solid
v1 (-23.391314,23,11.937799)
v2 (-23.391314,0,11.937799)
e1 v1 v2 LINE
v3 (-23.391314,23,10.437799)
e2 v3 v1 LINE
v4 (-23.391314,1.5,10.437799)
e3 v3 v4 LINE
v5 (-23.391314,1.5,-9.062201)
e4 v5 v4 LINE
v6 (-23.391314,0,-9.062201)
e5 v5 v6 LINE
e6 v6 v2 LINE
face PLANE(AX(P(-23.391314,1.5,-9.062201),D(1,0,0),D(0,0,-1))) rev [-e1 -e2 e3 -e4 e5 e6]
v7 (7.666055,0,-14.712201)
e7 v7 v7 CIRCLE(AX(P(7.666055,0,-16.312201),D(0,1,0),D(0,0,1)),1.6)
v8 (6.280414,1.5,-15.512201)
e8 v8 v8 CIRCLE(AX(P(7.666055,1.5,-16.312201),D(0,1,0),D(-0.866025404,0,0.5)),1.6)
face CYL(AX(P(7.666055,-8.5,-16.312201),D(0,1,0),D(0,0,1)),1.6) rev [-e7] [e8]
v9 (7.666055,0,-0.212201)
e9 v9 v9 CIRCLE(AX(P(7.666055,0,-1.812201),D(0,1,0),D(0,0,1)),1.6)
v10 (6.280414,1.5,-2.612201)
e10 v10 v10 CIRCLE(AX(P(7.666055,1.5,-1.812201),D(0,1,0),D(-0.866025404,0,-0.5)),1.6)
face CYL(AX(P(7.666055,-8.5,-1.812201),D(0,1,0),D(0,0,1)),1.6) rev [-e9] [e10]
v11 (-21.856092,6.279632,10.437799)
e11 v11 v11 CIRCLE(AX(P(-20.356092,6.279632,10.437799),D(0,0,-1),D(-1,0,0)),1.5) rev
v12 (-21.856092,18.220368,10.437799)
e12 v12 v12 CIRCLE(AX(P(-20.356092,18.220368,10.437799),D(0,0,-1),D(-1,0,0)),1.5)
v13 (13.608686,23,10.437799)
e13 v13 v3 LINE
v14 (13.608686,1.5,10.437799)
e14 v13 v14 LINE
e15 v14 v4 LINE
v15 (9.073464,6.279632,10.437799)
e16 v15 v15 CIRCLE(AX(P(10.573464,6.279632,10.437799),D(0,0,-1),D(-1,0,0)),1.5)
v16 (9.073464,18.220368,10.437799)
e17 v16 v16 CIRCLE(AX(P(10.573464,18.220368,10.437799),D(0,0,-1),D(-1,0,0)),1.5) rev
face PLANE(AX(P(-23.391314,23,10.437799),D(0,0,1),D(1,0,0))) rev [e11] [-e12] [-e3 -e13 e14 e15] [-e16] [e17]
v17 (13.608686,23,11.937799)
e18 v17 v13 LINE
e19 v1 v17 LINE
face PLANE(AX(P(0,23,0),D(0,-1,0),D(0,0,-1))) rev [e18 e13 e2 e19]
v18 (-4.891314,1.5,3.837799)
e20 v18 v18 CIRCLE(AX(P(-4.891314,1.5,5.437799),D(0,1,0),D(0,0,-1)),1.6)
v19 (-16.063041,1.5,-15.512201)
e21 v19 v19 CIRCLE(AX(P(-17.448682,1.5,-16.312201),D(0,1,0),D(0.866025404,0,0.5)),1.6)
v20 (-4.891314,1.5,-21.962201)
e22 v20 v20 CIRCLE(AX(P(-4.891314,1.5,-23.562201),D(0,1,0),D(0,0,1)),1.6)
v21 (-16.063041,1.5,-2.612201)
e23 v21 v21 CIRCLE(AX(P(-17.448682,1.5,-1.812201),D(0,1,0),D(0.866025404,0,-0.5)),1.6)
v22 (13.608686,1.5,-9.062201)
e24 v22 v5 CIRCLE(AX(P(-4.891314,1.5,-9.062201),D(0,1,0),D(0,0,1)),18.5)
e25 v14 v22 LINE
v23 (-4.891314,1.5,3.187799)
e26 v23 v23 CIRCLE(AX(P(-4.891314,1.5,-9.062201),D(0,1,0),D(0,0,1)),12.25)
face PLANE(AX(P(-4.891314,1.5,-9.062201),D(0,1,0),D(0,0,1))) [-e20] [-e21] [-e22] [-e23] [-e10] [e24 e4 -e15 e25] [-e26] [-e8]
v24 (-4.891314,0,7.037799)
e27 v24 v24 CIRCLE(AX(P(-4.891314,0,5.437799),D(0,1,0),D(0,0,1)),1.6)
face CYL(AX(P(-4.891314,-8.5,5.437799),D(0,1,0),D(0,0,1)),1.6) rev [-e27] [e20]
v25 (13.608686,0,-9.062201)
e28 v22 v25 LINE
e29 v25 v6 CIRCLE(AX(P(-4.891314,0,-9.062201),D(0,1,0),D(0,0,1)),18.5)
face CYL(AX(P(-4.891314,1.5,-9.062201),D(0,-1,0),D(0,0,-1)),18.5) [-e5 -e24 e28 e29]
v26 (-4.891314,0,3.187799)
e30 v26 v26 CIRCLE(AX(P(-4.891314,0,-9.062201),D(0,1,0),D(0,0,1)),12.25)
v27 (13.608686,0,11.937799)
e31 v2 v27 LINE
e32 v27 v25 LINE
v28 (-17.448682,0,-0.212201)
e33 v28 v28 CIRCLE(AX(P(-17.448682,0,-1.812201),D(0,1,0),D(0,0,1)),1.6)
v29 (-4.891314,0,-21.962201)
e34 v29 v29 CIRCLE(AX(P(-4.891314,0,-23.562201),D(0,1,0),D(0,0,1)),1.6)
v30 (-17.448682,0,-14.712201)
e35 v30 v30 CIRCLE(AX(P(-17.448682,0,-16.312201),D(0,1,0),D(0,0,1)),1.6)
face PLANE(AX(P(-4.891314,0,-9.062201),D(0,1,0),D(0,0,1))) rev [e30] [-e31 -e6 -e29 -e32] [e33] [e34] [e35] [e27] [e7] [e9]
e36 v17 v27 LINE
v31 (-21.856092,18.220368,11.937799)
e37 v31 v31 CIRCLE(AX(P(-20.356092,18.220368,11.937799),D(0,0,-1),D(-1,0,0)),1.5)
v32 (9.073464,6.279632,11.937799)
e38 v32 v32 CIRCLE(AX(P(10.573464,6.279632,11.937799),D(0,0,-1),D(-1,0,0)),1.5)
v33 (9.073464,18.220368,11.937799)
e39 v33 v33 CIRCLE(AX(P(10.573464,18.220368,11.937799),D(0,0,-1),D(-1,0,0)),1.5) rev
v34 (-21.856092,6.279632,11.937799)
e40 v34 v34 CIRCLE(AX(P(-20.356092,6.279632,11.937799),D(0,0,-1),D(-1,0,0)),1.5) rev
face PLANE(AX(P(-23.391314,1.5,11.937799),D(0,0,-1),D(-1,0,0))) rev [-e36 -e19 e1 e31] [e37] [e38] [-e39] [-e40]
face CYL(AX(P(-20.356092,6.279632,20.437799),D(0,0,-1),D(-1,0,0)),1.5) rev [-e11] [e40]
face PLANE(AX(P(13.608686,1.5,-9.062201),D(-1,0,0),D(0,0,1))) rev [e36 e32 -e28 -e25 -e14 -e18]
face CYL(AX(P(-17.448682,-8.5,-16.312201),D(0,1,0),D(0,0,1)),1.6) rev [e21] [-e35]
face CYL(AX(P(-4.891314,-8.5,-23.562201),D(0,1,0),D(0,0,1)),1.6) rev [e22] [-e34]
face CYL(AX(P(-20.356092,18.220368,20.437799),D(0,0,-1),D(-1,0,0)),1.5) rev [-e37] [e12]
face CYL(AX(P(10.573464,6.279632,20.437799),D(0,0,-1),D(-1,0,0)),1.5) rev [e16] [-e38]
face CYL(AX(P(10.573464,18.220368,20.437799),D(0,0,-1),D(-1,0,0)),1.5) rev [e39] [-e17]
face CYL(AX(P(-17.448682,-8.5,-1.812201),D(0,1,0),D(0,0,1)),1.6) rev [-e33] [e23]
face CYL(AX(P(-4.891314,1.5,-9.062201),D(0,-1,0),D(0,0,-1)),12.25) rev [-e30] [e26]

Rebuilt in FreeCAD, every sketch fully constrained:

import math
import FreeCAD as App
import Part
import Sketcher
Q = App.Units.Quantity

doc = App.newDocument("Part")
body = doc.addObject("PartDesign::Body", "Body")

sketch1 = body.newObject("Sketcher::SketchObject", "Sketch")
sketch1.AttachmentSupport = (doc.getObject("XZ_Plane"), [""])
sketch1.MapMode = "FlatFace"
sketch1.addGeometry([
    Part.LineSegment(App.Vector(-23.391314, -9.062201, 0), App.Vector(-23.391314, 11.937799, 0)),
    Part.LineSegment(App.Vector(-23.391314, 11.937799, 0), App.Vector(13.608686, 11.937799, 0)),
    Part.LineSegment(App.Vector(13.608686, 11.937799, 0), App.Vector(13.608686, -9.062201, 0)),
    Part.ArcOfCircle(Part.Circle(App.Vector(-4.891314, -9.062201, 0), App.Vector(0, 0, 1), 18.5), math.radians(180), math.radians(360)),
    Part.Circle(App.Vector(-4.891314, -9.062201, 0), App.Vector(0, 0, 1), 12.25),
], False)
sketch1.addConstraint([
    Sketcher.Constraint("Coincident", 0, 2, 1, 1),
    Sketcher.Constraint("Coincident", 1, 2, 2, 1),
    Sketcher.Constraint("Tangent", 2, 2, 3, 2),
    Sketcher.Constraint("Tangent", 3, 1, 0, 1),
    Sketcher.Constraint("Vertical", 0),
    Sketcher.Constraint("Horizontal", 1),
    Sketcher.Constraint("Vertical", 2),
    Sketcher.Constraint("Coincident", 4, 3, 3, 3),
    Sketcher.Constraint("Diameter", 4, Q("24.5 mm")),
    Sketcher.Constraint("Radius", 3, Q("18.5 mm")),
    Sketcher.Constraint("DistanceY", 0, 1, 0, 2, Q("21 mm")),
    Sketcher.Constraint("DistanceY", 3, 3, -1, 1, Q("9.062201 mm")),
    Sketcher.Constraint("DistanceX", 3, 3, -1, 1, Q("4.891314 mm")),
])
pad1 = body.newObject("PartDesign::Pad", "Pad")
pad1.Profile = sketch1
pad1.Length = 1.5
pad1.Reversed = True

sketch2 = body.newObject("Sketcher::SketchObject", "Sketch001")
sketch2.AttachmentSupport = (doc.getObject("XZ_Plane"), [""])
sketch2.MapMode = "FlatFace"
sketch2.AttachmentOffset = App.Placement(App.Vector(0, 0, -1.5), App.Rotation())
sketch2.addGeometry([
    Part.LineSegment(App.Vector(-23.391314, 10.437799, 0), App.Vector(-23.391314, 11.937799, 0)),
    Part.LineSegment(App.Vector(-23.391314, 11.937799, 0), App.Vector(13.608686, 11.937799, 0)),
    Part.LineSegment(App.Vector(13.608686, 11.937799, 0), App.Vector(13.608686, 10.437799, 0)),
    Part.LineSegment(App.Vector(13.608686, 10.437799, 0), App.Vector(-23.391314, 10.437799, 0)),
], False)
sketch2.addConstraint([
    Sketcher.Constraint("Coincident", 0, 2, 1, 1),
    Sketcher.Constraint("Coincident", 1, 2, 2, 1),
    Sketcher.Constraint("Coincident", 2, 2, 3, 1),
    Sketcher.Constraint("Coincident", 3, 2, 0, 1),
    Sketcher.Constraint("Vertical", 0),
    Sketcher.Constraint("Horizontal", 1),
    Sketcher.Constraint("Vertical", 2),
    Sketcher.Constraint("Horizontal", 3),
    Sketcher.Constraint("DistanceX", 1, 1, 1, 2, Q("37 mm")),
    Sketcher.Constraint("DistanceY", 0, 1, 0, 2, Q("1.5 mm")),
    Sketcher.Constraint("DistanceY", -1, 1, 0, 2, Q("11.937799 mm")),
    Sketcher.Constraint("DistanceX", 0, 2, -1, 1, Q("23.391314 mm")),
])
pad2 = body.newObject("PartDesign::Pad", "Pad001")
pad2.Profile = sketch2
pad2.Length = 21.5
pad2.Reversed = True

sketch3 = body.newObject("Sketcher::SketchObject", "Sketch002")
sketch3.AttachmentSupport = (doc.getObject("XY_Plane"), [""])
sketch3.MapMode = "FlatFace"
sketch3.AttachmentOffset = App.Placement(App.Vector(0, 0, 10.437799), App.Rotation())
sketch3.addGeometry([
    Part.Circle(App.Vector(10.573464, 6.279632, 0), App.Vector(0, 0, 1), 1.5),
    Part.Circle(App.Vector(-20.356092, 6.279632, 0), App.Vector(0, 0, 1), 1.5),
    Part.Circle(App.Vector(-20.356092, 18.220368, 0), App.Vector(0, 0, 1), 1.5),
    Part.Circle(App.Vector(10.573464, 18.220368, 0), App.Vector(0, 0, 1), 1.5),
], False)
sketch3.addConstraint([
    Sketcher.Constraint("Equal", 0, 1),
    Sketcher.Constraint("Equal", 1, 2),
    Sketcher.Constraint("Equal", 2, 3),
    Sketcher.Constraint("Horizontal", 0, 3, 1, 3),
    Sketcher.Constraint("Horizontal", 2, 3, 3, 3),
    Sketcher.Constraint("Vertical", 1, 3, 2, 3),
    Sketcher.Constraint("Vertical", 0, 3, 3, 3),
    Sketcher.Constraint("Diameter", 0, Q("3 mm")),
    Sketcher.Constraint("DistanceX", 1, 3, -1, 1, Q("20.356092 mm")),
    Sketcher.Constraint("DistanceX", -1, 1, 0, 3, Q("10.573464 mm")),
    Sketcher.Constraint("DistanceY", -1, 1, 0, 3, Q("6.279632 mm")),
    Sketcher.Constraint("DistanceY", -1, 1, 2, 3, Q("18.220368 mm")),
])
pocket1 = body.newObject("PartDesign::Pocket", "Pocket")
pocket1.Profile = sketch3
pocket1.Length = 10
pocket1.Reversed = True

sketch4 = body.newObject("Sketcher::SketchObject", "Sketch003")
sketch4.AttachmentSupport = (doc.getObject("XZ_Plane"), [""])
sketch4.MapMode = "FlatFace"
sketch4.AttachmentOffset = App.Placement(App.Vector(0, 0, -1.5), App.Rotation())
sketch4.addGeometry(Part.Circle(App.Vector(-4.891314, -23.562201, 0), App.Vector(0, 0, 1), 1.6), False)
sketch4.addConstraint([
    Sketcher.Constraint("Diameter", 0, Q("3.2 mm")),
    Sketcher.Constraint("DistanceY", 0, 3, -1, 1, Q("23.562201 mm")),
    Sketcher.Constraint("DistanceX", 0, 3, -1, 1, Q("4.891314 mm")),
])
pocket2 = body.newObject("PartDesign::Pocket", "Pocket001")
pocket2.Profile = sketch4
pocket2.Length = 10
pocket2.Reversed = True
doc.recompute()

datumline = body.newObject("PartDesign::Line", "DatumLine")
datumline.Placement = App.Placement(App.Vector(-4.891314, 0, -9.062201), App.Rotation(App.Vector(0, 0, 1), App.Vector(0, 1, 0)))
polarpattern = body.newObject("PartDesign::PolarPattern", "PolarPattern")
polarpattern.Originals = [pocket2]
polarpattern.Axis = (datumline, [""])
polarpattern.Angle = 360
polarpattern.Occurrences = 6
body.Tip = polarpattern

doc.recompute()
